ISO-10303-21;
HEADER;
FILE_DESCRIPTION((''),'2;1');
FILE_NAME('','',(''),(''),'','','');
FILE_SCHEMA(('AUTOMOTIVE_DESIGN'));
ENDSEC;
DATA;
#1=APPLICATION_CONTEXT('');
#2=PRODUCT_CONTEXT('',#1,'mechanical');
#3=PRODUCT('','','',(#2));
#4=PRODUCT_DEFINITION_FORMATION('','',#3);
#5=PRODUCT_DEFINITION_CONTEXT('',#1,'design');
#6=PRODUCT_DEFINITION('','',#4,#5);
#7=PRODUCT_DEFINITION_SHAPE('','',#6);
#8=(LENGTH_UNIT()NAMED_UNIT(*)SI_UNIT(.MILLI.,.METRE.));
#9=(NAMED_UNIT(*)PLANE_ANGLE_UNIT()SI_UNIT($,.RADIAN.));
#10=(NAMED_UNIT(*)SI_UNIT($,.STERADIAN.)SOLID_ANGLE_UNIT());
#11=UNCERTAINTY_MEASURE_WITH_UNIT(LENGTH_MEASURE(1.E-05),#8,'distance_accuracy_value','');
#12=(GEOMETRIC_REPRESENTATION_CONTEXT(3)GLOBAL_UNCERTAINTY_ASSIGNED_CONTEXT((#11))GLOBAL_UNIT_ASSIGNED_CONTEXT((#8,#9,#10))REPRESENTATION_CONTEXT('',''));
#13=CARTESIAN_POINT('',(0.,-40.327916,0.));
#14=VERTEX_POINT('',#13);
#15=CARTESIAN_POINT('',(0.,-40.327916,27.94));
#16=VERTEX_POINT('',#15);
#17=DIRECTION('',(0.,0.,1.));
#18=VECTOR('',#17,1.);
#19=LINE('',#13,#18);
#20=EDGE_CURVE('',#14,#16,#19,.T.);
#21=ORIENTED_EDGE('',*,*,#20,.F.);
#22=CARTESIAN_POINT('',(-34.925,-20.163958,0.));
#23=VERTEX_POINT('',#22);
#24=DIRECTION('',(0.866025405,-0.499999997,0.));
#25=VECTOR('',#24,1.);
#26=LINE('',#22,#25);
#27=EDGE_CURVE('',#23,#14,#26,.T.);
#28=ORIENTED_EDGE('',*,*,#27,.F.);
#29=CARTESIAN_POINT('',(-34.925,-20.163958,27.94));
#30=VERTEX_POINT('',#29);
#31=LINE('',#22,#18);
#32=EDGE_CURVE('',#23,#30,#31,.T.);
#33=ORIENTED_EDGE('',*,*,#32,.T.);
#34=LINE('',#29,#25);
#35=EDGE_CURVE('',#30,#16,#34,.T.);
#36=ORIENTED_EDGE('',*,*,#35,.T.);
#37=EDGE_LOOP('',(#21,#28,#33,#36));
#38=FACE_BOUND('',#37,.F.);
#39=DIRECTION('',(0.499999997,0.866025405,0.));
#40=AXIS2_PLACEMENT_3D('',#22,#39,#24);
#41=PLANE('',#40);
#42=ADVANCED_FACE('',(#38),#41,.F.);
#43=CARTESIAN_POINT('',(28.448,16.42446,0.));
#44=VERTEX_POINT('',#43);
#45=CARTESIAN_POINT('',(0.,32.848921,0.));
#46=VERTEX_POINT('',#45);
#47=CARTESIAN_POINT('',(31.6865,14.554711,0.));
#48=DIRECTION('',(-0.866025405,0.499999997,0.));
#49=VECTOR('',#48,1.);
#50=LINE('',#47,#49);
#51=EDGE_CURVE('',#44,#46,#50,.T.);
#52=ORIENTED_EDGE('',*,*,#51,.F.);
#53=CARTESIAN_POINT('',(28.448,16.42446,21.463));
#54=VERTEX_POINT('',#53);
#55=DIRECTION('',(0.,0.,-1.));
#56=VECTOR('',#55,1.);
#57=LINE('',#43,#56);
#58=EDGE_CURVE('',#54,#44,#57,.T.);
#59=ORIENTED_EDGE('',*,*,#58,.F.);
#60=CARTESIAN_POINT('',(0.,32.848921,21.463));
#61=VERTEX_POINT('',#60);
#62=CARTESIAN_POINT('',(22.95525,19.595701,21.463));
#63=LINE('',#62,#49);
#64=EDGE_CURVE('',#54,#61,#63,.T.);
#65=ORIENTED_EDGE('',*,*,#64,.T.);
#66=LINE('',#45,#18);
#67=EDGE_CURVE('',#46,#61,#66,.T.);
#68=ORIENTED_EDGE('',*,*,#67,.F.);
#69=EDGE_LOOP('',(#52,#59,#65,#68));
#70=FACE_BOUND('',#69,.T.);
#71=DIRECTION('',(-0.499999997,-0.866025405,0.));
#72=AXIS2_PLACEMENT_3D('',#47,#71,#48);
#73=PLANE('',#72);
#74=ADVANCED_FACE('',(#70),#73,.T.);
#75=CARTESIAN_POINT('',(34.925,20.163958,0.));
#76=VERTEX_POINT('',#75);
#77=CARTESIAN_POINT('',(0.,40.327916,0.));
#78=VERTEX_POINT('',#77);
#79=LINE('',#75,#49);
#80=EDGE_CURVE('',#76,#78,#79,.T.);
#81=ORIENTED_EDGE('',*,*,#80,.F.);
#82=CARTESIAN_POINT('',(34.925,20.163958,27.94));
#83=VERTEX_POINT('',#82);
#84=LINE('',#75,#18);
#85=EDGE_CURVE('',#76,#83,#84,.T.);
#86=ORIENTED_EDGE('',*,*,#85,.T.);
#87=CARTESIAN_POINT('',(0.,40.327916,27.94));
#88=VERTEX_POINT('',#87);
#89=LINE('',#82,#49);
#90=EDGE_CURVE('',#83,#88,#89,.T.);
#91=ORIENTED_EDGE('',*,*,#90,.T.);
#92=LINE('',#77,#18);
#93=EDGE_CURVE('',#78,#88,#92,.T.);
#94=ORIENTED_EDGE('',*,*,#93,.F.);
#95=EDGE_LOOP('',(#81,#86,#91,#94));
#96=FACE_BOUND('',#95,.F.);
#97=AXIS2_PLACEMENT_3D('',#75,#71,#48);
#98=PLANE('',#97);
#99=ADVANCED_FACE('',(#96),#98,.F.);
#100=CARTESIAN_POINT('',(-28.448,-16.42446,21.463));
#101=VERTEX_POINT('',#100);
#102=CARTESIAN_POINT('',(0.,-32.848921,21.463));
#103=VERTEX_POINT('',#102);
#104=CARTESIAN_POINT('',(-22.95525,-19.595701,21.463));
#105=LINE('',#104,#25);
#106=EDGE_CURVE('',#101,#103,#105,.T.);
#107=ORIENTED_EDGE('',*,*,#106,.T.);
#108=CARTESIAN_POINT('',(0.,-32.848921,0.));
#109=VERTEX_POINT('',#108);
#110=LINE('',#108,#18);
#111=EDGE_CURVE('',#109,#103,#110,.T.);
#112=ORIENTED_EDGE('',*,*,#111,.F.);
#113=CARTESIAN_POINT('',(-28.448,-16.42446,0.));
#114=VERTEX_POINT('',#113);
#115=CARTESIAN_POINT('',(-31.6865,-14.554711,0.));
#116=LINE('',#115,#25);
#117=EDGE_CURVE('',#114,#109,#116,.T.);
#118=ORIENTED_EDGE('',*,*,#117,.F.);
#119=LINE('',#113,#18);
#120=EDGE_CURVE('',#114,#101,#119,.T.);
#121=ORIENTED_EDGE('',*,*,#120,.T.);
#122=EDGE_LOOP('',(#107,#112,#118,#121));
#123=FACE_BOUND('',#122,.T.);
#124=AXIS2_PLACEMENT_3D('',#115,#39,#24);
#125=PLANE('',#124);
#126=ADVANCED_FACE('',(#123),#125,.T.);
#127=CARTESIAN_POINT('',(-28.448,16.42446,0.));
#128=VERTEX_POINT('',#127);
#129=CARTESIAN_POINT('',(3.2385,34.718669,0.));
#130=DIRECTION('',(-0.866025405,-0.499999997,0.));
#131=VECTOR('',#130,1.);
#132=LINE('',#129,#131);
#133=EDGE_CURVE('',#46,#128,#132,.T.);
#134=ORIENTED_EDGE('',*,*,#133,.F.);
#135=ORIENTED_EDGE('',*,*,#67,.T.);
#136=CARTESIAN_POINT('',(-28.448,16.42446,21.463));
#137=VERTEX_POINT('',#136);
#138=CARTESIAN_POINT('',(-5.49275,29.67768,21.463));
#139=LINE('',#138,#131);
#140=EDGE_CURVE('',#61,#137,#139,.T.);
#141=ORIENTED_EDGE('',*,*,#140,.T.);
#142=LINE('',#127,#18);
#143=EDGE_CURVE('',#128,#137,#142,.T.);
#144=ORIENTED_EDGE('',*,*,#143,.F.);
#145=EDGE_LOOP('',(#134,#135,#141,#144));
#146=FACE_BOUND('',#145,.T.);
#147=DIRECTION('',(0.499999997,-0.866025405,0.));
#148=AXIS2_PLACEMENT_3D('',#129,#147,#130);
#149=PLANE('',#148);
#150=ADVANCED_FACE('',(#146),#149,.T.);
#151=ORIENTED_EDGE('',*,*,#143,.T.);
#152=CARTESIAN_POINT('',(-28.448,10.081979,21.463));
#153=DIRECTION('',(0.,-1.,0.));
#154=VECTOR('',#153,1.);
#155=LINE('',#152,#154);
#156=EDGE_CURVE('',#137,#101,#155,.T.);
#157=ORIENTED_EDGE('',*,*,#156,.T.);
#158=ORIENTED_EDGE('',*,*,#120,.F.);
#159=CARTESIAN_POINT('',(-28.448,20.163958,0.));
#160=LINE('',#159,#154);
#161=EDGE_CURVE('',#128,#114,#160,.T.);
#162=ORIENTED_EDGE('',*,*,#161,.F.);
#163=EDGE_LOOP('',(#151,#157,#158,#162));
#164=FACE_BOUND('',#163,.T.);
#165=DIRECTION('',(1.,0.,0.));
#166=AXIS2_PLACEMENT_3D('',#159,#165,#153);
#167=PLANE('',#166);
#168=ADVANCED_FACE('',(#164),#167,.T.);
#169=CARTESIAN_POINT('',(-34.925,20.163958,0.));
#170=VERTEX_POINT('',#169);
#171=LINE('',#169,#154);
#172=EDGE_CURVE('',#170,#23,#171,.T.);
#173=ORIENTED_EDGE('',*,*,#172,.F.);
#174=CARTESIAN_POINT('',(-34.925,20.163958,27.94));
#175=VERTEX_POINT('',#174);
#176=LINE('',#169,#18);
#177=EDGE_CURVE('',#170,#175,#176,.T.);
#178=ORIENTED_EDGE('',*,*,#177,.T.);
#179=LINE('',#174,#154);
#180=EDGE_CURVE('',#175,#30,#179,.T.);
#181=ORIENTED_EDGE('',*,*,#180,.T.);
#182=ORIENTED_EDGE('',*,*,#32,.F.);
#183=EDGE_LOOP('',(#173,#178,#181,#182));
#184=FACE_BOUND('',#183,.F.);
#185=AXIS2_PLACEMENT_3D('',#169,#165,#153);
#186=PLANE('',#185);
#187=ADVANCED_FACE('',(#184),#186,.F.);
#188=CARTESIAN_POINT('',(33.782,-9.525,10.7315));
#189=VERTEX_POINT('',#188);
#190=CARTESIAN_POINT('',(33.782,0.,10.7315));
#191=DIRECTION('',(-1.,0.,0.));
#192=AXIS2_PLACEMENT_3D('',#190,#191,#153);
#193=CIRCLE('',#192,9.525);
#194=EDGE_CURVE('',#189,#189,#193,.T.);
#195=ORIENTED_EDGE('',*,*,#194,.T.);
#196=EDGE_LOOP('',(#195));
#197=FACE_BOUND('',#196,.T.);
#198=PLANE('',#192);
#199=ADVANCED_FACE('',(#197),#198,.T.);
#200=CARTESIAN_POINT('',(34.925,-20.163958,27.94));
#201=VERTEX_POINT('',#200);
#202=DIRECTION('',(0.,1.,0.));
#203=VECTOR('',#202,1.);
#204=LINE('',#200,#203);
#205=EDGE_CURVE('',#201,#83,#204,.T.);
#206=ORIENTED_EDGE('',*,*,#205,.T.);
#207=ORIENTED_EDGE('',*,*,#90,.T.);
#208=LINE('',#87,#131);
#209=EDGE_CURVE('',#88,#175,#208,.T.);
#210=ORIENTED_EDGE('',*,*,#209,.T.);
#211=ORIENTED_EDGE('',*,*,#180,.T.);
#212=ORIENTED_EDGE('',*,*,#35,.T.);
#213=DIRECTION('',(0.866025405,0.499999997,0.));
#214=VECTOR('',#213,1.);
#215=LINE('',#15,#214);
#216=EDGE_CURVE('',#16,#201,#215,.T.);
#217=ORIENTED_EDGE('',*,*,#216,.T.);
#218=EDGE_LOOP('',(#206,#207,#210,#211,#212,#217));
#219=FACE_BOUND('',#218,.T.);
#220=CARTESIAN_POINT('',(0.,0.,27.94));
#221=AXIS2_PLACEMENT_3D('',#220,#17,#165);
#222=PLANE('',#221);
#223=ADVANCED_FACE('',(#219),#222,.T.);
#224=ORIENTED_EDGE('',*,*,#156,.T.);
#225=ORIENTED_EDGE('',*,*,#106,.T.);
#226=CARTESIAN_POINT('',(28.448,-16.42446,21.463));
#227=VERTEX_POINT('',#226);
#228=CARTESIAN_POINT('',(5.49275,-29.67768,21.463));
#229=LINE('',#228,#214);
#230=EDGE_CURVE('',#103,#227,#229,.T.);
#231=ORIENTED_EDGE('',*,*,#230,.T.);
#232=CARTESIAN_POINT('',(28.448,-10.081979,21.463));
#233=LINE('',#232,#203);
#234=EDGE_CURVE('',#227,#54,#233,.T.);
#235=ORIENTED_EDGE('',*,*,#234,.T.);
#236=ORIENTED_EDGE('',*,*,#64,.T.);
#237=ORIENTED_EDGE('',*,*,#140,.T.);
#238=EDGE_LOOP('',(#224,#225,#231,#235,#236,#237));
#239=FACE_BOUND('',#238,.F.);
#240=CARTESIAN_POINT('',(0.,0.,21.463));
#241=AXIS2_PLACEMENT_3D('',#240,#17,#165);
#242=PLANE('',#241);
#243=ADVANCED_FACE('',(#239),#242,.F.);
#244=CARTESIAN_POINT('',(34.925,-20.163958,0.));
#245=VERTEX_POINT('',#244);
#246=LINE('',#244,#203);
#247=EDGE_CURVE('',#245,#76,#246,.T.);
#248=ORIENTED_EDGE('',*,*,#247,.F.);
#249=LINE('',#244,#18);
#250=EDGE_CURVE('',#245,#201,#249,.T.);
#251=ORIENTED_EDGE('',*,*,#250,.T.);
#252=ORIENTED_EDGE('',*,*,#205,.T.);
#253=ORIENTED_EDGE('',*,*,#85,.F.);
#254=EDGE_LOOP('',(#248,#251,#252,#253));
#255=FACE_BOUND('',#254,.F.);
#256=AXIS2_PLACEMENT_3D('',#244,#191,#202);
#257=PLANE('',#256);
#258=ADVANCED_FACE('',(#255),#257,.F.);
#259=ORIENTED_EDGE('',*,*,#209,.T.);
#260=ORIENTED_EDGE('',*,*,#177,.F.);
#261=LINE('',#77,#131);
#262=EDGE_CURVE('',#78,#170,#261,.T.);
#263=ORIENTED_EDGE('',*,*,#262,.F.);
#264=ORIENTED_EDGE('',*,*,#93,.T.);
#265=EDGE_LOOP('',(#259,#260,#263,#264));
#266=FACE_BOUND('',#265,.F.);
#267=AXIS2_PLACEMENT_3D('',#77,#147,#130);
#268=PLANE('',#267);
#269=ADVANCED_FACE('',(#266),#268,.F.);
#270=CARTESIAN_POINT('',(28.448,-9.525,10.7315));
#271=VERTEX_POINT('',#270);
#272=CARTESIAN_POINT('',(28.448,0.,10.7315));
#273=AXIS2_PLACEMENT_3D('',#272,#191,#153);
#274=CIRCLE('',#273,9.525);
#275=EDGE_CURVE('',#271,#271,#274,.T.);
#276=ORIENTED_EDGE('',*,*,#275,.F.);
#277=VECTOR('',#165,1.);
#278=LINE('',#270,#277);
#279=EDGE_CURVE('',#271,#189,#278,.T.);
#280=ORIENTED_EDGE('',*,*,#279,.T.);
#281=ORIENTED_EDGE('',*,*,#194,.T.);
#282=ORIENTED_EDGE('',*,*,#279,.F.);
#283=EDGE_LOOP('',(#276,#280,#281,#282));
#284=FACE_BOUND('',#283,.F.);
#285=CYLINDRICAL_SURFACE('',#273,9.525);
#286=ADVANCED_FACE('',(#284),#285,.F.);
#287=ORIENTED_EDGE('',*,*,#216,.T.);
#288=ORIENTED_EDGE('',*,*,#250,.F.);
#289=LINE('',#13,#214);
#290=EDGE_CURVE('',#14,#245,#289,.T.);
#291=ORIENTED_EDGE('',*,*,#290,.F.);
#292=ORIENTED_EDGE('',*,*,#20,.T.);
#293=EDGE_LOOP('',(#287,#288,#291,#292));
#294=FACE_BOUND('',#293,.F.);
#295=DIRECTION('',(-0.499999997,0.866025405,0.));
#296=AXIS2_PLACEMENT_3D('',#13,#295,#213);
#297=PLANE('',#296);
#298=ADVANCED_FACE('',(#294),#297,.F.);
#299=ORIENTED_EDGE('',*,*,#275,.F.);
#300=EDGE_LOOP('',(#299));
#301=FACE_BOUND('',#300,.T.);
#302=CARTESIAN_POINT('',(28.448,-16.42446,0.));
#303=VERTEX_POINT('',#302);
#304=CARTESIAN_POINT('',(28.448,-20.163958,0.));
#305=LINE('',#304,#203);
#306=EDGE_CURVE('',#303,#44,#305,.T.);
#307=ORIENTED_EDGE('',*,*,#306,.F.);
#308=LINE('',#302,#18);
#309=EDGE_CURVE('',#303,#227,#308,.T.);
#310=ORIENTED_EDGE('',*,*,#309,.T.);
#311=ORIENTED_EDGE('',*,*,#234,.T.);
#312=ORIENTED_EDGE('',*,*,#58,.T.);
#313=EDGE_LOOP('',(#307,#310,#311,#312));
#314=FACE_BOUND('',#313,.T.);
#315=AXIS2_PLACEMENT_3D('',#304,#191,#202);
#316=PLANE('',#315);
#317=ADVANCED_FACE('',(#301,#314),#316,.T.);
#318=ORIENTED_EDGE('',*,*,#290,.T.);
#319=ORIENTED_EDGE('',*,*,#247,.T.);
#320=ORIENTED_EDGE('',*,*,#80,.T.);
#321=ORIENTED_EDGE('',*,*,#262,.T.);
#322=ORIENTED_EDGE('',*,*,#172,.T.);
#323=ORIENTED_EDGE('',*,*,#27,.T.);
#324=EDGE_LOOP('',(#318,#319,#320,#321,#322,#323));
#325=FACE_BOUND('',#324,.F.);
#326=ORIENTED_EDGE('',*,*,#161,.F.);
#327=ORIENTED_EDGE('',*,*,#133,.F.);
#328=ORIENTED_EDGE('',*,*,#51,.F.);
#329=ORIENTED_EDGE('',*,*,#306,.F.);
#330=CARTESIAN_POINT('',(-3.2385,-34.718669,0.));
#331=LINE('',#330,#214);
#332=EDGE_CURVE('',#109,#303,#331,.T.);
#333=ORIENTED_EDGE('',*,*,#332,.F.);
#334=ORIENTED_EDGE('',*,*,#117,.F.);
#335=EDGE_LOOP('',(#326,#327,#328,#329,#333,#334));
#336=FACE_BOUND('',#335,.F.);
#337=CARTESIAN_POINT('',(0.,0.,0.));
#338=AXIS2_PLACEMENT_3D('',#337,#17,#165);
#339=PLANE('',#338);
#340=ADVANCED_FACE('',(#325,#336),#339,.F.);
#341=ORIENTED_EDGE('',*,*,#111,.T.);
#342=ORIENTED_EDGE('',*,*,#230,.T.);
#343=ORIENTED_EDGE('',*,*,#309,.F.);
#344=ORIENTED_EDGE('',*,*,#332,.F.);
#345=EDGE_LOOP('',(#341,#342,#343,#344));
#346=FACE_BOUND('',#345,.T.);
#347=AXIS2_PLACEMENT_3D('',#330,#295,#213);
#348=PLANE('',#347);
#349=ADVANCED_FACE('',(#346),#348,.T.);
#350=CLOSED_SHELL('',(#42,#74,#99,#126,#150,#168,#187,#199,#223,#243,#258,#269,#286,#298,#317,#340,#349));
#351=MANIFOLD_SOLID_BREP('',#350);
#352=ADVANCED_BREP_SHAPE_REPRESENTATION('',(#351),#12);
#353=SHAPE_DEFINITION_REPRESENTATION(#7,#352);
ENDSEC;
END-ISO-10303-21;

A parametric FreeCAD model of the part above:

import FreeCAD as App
import Part
import Sketcher
from FreeCAD import Vector
Q = App.Units.Quantity


def faces_at(feature, points):
    """Names of the faces that lie closest to the given points."""
    faces = feature.Shape.Faces
    near = lambda p: min(range(len(faces)), key=lambda i: faces[i].distToShape(Part.Vertex(*p))[0])
    return sorted({f"Face{near(p) + 1}" for p in points})


def add_polygon(sketch, points):
    """Adds a closed chain of lines whose ends are joined by coincident constraints."""
    first, n = sketch.GeometryCount, len(points)
    for a, b in zip(points, points[1:] + points[:1]):
        sketch.addGeometry(Part.LineSegment(App.Vector(*a, 0), App.Vector(*b, 0)), False)
    for i in range(n):
        sketch.addConstraint(Sketcher.Constraint("Coincident", first + i, 2, first + (i + 1) % n, 1))

doc = App.newDocument("Part")
body = doc.addObject("PartDesign::Body", "Body")

# Sketch on XY plane
sketch1 = body.newObject("Sketcher::SketchObject", "Sketch")
sketch1.AttachmentSupport = (doc.getObject("XY_Plane"), [""])
sketch1.MapMode = "FlatFace"
add_polygon(sketch1, [(35, 20), (0, 40), (-35, 20), (-35, -20), (0, -40), (35, -20)])  # lines 0-5
sketch1.addConstraint(Sketcher.Constraint("Vertical", 2))
sketch1.addConstraint(Sketcher.Constraint("Vertical", 5))
sketch1.addConstraint(Sketcher.Constraint("Symmetric", 0, 2, 3, 2, -1, 1))
sketch1.addConstraint(Sketcher.Constraint("Symmetric", 1, 2, 4, 2, -1, 1))
sketch1.addConstraint(Sketcher.Constraint("PointOnObject", 0, 2, -2))
sketch1.addConstraint(Sketcher.Constraint("Parallel", 0, 3))
sketch1.addConstraint(Sketcher.Constraint("Horizontal", 2, 2, 4, 2))
sketch1.addConstraint(Sketcher.Constraint("Angle", 0, Q("150 deg")))
sketch1.addConstraint(Sketcher.Constraint("DistanceX", 2, 2, 4, 2, Q("2.75 in")))
sketch1.addConstraint(Sketcher.Constraint("DistanceY", 2, 2, 2, 1, 40.327916))
pad1 = body.newObject("PartDesign::Pad", "Pad")
pad1.Profile = sketch1
pad1.Length = Q("1.1 in")
doc.recompute()

thickness = body.newObject("PartDesign::Thickness", "Thickness")
thickness.Base = (pad1, faces_at(pad1, [(0, 0, 0)]))
thickness.Value = Q("0.255 in")
thickness.Reversed = True
thickness.Join = "Arc"

# Sketch on YZ plane
sketch2 = body.newObject("Sketcher::SketchObject", "Sketch001")
sketch2.AttachmentSupport = (doc.getObject("YZ_Plane"), [""])
sketch2.MapMode = "FlatFace"
sketch2.AttachmentOffset = App.Placement(Vector(0, 0, 1.12 * 25.4), App.Rotation())
sketch2.addGeometry(Part.Circle(Vector(0, 11, 0), Vector(0, 0, 1), 10), False)
sketch2.addConstraint(Sketcher.Constraint("PointOnObject", 0, 3, -2))
sketch2.addConstraint(Sketcher.Constraint("Diameter", 0, Q("0.75 in")))
sketch2.addConstraint(Sketcher.Constraint("DistanceY", -1, 1, 0, 3, Q("0.4225 in")))
pocket1 = body.newObject("PartDesign::Pocket", "Pocket")
pocket1.Profile = sketch2
pocket1.Length = Q("0.21 in")
pocket1.Reversed = True

doc.recompute()
